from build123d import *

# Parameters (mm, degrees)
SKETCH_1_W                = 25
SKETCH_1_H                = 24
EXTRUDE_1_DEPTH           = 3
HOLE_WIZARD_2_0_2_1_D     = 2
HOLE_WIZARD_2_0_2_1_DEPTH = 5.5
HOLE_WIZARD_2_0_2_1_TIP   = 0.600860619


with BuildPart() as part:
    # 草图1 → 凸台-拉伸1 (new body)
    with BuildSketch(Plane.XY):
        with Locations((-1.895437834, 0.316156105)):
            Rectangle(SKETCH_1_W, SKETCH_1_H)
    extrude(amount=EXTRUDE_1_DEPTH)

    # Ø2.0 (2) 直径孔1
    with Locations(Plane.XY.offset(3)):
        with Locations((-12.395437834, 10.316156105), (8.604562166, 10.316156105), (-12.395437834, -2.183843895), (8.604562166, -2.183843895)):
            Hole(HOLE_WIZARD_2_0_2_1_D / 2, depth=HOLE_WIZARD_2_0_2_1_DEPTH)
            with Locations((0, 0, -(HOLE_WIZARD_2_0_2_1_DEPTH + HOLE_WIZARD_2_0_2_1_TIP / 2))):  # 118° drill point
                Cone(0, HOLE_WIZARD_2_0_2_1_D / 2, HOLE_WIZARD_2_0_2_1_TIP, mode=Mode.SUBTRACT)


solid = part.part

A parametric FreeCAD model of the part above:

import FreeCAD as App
import Part
import Sketcher
Q = App.Units.Quantity


def add_polygon(sketch, points):
    """Adds a closed chain of lines whose ends are joined by coincident constraints."""
    first, n = sketch.GeometryCount, len(points)
    for a, b in zip(points, points[1:] + points[:1]):
        sketch.addGeometry(Part.LineSegment(App.Vector(*a, 0), App.Vector(*b, 0)), False)
    for i in range(n):
        sketch.addConstraint(Sketcher.Constraint("Coincident", first + i, 2, first + (i + 1) % n, 1))

doc = App.newDocument("Part")
body = doc.addObject("PartDesign::Body", "Body")

sketch1 = doc.addObject("Sketcher::SketchObject", "Sketch")
body.addObject(sketch1)
sketch1.AttachmentSupport = (doc.XY_Plane, [""])
sketch1.MapMode = "FlatFace"
add_polygon(sketch1, [(-14, 12), (-14, -12), (11, -12), (11, 12)])
sketch1.addConstraint(Sketcher.Constraint("Vertical", 0))
sketch1.addConstraint(Sketcher.Constraint("Horizontal", 1))
sketch1.addConstraint(Sketcher.Constraint("Vertical", 2))
sketch1.addConstraint(Sketcher.Constraint("Horizontal", 3))
sketch1.addConstraint(Sketcher.Constraint("DistanceX", 1, 1, 1, 2, Q("25 mm")))
sketch1.addConstraint(Sketcher.Constraint("DistanceY", 0, 2, 0, 1, Q("24 mm")))
sketch1.addConstraint(Sketcher.Constraint("DistanceX", 0, 2, -1, 1, Q("14.395438 mm")))
sketch1.addConstraint(Sketcher.Constraint("DistanceY", 0, 2, -1, 1, Q("11.683844 mm")))
pad1 = doc.addObject("PartDesign::Pad", "Pad")
body.addObject(pad1)
pad1.Profile = sketch1
pad1.Length = 3

sketch2 = doc.addObject("Sketcher::SketchObject", "Sketch001")
body.addObject(sketch2)
sketch2.AttachmentSupport = (doc.XY_Plane, [""])
sketch2.MapMode = "FlatFace"
sketch2.AttachmentOffset = App.Placement(App.Vector(0, 0, 3), App.Rotation())
sketch2.addGeometry(Part.Circle(App.Vector(-12.4, 10.3, 0), App.Vector(0, 0, 1), 1), False)
sketch2.addGeometry(Part.Circle(App.Vector(8.6, 10.3, 0), App.Vector(0, 0, 1), 1), False)
sketch2.addGeometry(Part.Circle(App.Vector(-12.4, -2.2, 0), App.Vector(0, 0, 1), 1), False)
sketch2.addGeometry(Part.Circle(App.Vector(8.6, -2.2, 0), App.Vector(0, 0, 1), 1), False)
sketch2.addConstraint(Sketcher.Constraint("Equal", 0, 1))
sketch2.addConstraint(Sketcher.Constraint("Equal", 1, 2))
sketch2.addConstraint(Sketcher.Constraint("Equal", 2, 3))
sketch2.addConstraint(Sketcher.Constraint("Horizontal", 0, 3, 1, 3))
sketch2.addConstraint(Sketcher.Constraint("Horizontal", 2, 3, 3, 3))
sketch2.addConstraint(Sketcher.Constraint("Vertical", 0, 3, 2, 3))
sketch2.addConstraint(Sketcher.Constraint("Vertical", 1, 3, 3, 3))
sketch2.addConstraint(Sketcher.Constraint("Diameter", 0, Q("2 mm")))
sketch2.addConstraint(Sketcher.Constraint("DistanceX", 0, 3, 1, 3, Q("21 mm")))
sketch2.addConstraint(Sketcher.Constraint("DistanceY", 2, 3, 0, 3, Q("12.5 mm")))
sketch2.addConstraint(Sketcher.Constraint("DistanceX", 0, 3, -1, 1, Q("12.395438 mm")))
sketch2.addConstraint(Sketcher.Constraint("DistanceY", -1, 1, 0, 3, Q("10.316156 mm")))
doc.recompute()
hole = doc.addObject("PartDesign::Hole", "Hole")
body.addObject(hole)
hole.Profile = sketch2
hole.ThreadType = "None"
hole.Diameter = 2
hole.DepthType = "Dimension"
hole.Depth = 5.5
hole.DrillPoint = "Angled"
hole.DrillPointAngle = 118

doc.recompute()
